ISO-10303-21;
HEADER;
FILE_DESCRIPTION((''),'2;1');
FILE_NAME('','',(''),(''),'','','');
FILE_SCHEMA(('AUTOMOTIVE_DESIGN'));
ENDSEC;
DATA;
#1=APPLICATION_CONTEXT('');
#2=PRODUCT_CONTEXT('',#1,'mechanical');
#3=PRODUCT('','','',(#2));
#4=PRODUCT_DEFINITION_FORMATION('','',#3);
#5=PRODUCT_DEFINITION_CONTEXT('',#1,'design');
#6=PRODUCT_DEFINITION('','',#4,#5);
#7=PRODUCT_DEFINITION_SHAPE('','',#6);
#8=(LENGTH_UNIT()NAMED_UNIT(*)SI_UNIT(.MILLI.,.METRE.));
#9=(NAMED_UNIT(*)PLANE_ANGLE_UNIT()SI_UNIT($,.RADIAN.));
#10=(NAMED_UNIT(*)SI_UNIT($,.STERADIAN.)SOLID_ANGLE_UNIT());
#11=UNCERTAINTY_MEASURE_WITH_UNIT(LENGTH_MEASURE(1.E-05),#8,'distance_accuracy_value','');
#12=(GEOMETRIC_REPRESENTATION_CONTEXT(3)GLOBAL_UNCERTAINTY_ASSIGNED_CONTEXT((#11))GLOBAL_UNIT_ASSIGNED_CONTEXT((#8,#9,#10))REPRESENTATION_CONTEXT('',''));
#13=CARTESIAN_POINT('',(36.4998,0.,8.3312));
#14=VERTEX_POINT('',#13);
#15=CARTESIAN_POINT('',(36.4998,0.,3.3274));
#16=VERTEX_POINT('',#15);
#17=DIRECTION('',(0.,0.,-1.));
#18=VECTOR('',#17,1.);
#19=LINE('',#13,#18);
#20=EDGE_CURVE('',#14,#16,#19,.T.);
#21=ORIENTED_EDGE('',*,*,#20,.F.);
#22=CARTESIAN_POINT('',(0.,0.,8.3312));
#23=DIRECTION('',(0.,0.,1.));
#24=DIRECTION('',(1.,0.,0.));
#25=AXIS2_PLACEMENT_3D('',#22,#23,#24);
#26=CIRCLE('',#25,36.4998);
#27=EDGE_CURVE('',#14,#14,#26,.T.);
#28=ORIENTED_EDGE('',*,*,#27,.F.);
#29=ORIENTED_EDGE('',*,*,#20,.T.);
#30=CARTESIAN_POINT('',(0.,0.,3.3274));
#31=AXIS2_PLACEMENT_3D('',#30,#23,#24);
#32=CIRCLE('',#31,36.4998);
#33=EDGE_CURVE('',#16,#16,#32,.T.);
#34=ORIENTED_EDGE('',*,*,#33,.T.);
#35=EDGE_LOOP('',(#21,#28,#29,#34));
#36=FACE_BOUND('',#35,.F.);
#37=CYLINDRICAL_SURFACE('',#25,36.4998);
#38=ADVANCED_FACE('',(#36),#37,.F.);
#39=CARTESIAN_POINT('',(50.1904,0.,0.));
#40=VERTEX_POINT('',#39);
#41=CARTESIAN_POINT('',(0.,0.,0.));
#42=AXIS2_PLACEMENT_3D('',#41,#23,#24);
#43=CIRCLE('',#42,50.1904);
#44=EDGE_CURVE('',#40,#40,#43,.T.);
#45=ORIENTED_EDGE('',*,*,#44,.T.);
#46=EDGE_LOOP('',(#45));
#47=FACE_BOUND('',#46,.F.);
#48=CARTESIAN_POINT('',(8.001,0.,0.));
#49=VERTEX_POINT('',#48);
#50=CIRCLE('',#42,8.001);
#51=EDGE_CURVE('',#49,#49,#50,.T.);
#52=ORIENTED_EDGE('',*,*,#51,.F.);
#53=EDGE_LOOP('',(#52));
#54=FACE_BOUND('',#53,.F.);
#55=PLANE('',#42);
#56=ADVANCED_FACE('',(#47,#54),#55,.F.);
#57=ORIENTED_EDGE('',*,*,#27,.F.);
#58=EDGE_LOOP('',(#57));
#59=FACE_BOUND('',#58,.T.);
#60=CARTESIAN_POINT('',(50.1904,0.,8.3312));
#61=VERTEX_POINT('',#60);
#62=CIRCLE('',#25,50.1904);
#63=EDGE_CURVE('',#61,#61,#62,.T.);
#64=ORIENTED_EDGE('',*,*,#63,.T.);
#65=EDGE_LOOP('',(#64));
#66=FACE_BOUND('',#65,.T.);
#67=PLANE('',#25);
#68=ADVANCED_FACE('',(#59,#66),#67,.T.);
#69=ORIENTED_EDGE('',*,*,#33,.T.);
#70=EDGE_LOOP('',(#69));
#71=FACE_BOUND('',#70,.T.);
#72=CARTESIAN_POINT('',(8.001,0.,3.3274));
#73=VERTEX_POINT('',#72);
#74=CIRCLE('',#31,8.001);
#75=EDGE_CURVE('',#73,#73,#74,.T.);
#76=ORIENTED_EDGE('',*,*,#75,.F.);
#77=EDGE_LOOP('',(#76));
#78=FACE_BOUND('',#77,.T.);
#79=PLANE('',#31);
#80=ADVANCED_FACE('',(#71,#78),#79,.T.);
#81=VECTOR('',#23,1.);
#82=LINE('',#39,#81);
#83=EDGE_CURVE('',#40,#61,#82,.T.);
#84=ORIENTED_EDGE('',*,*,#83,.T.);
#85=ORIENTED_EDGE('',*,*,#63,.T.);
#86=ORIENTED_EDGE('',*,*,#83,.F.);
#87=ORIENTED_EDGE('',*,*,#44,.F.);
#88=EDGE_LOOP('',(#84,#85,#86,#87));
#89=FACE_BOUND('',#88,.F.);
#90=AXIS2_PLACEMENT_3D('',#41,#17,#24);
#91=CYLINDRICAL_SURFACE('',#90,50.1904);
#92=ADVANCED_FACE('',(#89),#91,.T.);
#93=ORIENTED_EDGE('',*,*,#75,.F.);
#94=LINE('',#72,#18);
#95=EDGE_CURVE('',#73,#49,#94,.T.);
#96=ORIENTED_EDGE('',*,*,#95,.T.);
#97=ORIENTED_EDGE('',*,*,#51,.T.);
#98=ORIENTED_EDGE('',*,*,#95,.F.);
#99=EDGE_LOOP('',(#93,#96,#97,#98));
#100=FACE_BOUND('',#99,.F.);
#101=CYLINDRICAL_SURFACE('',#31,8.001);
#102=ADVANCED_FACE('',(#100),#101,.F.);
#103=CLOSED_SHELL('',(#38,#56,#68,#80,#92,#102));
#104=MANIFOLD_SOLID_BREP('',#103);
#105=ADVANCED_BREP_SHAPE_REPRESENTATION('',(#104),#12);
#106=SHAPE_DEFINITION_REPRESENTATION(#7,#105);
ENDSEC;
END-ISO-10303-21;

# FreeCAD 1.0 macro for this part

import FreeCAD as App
import Part
import Sketcher
from FreeCAD import Vector
Q = App.Units.Quantity

doc = App.newDocument("Part")
params = doc.addObject("Spreadsheet::Sheet", "Params")
for row, (alias, value) in enumerate([
    ("sketch1_diameter", "3.952 in"),
    ("pad1_length", "0.328 in"),
    ("sketch2_diameter", "2.874 in"),
    ("pocket1_length", "0.197 in"),
    ("sketch3_diameter", "0.63 in"),
], start=1):
    params.set(f"A{row}", alias)
    params.set(f"B{row}", "=" + value)
    params.setAlias(f"B{row}", alias)

body = doc.addObject("PartDesign::Body", "Body")

# Sketch on XY plane
sketch1 = body.newObject("Sketcher::SketchObject", "Sketch")
sketch1.AttachmentSupport = (doc.getObject("XY_Plane"), [""])
sketch1.MapMode = "FlatFace"
sketch1.addGeometry(Part.Circle(Vector(0, 0, 0), Vector(0, 0, 1), 50.1904), False)
sketch1.addConstraint([
    Sketcher.Constraint("Coincident", 0, 3, -1, 1),
    Sketcher.Constraint("Diameter", 0, Q("3.952 in")),
])
sketch1.setExpression("Constraints[1]", "Params.sketch1_diameter")
pad1 = body.newObject("PartDesign::Pad", "Pad")
pad1.Profile = sketch1
pad1.setExpression("Length", "Params.pad1_length")

# Sketch on XY plane
sketch2 = body.newObject("Sketcher::SketchObject", "Sketch001")
sketch2.AttachmentSupport = (doc.getObject("XY_Plane"), [""])
sketch2.MapMode = "FlatFace"
sketch2.AttachmentOffset = App.Placement(Vector(0, 0, 0.328 * 25.4), App.Rotation())
sketch2.addGeometry(Part.Circle(Vector(0, 0, 0), Vector(0, 0, 1), 36.4998), False)
sketch2.addConstraint([
    Sketcher.Constraint("Coincident", 0, 3, -1, 1),
    Sketcher.Constraint("Diameter", 0, Q("2.874 in")),
])
sketch2.setExpression("Constraints[1]", "Params.sketch2_diameter")
pocket1 = body.newObject("PartDesign::Pocket", "Pocket")
pocket1.Profile = sketch2
pocket1.setExpression("Length", "Params.pocket1_length")

# Sketch on XY plane
sketch3 = body.newObject("Sketcher::SketchObject", "Sketch002")
sketch3.AttachmentSupport = (doc.getObject("XY_Plane"), [""])
sketch3.MapMode = "FlatFace"
sketch3.AttachmentOffset = App.Placement(Vector(0, 0, 0.131 * 25.4), App.Rotation())
sketch3.addGeometry(Part.Circle(Vector(0, 0, 0), Vector(0, 0, 1), 8.001), False)
sketch3.addConstraint([
    Sketcher.Constraint("Coincident", 0, 3, -1, 1),
    Sketcher.Constraint("Diameter", 0, Q("0.63 in")),
])
sketch3.setExpression("Constraints[1]", "Params.sketch3_diameter")
pocket2 = body.newObject("PartDesign::Pocket", "Pocket001")
pocket2.Profile = sketch3
pocket2.Type = "ThroughAll"

doc.recompute()
